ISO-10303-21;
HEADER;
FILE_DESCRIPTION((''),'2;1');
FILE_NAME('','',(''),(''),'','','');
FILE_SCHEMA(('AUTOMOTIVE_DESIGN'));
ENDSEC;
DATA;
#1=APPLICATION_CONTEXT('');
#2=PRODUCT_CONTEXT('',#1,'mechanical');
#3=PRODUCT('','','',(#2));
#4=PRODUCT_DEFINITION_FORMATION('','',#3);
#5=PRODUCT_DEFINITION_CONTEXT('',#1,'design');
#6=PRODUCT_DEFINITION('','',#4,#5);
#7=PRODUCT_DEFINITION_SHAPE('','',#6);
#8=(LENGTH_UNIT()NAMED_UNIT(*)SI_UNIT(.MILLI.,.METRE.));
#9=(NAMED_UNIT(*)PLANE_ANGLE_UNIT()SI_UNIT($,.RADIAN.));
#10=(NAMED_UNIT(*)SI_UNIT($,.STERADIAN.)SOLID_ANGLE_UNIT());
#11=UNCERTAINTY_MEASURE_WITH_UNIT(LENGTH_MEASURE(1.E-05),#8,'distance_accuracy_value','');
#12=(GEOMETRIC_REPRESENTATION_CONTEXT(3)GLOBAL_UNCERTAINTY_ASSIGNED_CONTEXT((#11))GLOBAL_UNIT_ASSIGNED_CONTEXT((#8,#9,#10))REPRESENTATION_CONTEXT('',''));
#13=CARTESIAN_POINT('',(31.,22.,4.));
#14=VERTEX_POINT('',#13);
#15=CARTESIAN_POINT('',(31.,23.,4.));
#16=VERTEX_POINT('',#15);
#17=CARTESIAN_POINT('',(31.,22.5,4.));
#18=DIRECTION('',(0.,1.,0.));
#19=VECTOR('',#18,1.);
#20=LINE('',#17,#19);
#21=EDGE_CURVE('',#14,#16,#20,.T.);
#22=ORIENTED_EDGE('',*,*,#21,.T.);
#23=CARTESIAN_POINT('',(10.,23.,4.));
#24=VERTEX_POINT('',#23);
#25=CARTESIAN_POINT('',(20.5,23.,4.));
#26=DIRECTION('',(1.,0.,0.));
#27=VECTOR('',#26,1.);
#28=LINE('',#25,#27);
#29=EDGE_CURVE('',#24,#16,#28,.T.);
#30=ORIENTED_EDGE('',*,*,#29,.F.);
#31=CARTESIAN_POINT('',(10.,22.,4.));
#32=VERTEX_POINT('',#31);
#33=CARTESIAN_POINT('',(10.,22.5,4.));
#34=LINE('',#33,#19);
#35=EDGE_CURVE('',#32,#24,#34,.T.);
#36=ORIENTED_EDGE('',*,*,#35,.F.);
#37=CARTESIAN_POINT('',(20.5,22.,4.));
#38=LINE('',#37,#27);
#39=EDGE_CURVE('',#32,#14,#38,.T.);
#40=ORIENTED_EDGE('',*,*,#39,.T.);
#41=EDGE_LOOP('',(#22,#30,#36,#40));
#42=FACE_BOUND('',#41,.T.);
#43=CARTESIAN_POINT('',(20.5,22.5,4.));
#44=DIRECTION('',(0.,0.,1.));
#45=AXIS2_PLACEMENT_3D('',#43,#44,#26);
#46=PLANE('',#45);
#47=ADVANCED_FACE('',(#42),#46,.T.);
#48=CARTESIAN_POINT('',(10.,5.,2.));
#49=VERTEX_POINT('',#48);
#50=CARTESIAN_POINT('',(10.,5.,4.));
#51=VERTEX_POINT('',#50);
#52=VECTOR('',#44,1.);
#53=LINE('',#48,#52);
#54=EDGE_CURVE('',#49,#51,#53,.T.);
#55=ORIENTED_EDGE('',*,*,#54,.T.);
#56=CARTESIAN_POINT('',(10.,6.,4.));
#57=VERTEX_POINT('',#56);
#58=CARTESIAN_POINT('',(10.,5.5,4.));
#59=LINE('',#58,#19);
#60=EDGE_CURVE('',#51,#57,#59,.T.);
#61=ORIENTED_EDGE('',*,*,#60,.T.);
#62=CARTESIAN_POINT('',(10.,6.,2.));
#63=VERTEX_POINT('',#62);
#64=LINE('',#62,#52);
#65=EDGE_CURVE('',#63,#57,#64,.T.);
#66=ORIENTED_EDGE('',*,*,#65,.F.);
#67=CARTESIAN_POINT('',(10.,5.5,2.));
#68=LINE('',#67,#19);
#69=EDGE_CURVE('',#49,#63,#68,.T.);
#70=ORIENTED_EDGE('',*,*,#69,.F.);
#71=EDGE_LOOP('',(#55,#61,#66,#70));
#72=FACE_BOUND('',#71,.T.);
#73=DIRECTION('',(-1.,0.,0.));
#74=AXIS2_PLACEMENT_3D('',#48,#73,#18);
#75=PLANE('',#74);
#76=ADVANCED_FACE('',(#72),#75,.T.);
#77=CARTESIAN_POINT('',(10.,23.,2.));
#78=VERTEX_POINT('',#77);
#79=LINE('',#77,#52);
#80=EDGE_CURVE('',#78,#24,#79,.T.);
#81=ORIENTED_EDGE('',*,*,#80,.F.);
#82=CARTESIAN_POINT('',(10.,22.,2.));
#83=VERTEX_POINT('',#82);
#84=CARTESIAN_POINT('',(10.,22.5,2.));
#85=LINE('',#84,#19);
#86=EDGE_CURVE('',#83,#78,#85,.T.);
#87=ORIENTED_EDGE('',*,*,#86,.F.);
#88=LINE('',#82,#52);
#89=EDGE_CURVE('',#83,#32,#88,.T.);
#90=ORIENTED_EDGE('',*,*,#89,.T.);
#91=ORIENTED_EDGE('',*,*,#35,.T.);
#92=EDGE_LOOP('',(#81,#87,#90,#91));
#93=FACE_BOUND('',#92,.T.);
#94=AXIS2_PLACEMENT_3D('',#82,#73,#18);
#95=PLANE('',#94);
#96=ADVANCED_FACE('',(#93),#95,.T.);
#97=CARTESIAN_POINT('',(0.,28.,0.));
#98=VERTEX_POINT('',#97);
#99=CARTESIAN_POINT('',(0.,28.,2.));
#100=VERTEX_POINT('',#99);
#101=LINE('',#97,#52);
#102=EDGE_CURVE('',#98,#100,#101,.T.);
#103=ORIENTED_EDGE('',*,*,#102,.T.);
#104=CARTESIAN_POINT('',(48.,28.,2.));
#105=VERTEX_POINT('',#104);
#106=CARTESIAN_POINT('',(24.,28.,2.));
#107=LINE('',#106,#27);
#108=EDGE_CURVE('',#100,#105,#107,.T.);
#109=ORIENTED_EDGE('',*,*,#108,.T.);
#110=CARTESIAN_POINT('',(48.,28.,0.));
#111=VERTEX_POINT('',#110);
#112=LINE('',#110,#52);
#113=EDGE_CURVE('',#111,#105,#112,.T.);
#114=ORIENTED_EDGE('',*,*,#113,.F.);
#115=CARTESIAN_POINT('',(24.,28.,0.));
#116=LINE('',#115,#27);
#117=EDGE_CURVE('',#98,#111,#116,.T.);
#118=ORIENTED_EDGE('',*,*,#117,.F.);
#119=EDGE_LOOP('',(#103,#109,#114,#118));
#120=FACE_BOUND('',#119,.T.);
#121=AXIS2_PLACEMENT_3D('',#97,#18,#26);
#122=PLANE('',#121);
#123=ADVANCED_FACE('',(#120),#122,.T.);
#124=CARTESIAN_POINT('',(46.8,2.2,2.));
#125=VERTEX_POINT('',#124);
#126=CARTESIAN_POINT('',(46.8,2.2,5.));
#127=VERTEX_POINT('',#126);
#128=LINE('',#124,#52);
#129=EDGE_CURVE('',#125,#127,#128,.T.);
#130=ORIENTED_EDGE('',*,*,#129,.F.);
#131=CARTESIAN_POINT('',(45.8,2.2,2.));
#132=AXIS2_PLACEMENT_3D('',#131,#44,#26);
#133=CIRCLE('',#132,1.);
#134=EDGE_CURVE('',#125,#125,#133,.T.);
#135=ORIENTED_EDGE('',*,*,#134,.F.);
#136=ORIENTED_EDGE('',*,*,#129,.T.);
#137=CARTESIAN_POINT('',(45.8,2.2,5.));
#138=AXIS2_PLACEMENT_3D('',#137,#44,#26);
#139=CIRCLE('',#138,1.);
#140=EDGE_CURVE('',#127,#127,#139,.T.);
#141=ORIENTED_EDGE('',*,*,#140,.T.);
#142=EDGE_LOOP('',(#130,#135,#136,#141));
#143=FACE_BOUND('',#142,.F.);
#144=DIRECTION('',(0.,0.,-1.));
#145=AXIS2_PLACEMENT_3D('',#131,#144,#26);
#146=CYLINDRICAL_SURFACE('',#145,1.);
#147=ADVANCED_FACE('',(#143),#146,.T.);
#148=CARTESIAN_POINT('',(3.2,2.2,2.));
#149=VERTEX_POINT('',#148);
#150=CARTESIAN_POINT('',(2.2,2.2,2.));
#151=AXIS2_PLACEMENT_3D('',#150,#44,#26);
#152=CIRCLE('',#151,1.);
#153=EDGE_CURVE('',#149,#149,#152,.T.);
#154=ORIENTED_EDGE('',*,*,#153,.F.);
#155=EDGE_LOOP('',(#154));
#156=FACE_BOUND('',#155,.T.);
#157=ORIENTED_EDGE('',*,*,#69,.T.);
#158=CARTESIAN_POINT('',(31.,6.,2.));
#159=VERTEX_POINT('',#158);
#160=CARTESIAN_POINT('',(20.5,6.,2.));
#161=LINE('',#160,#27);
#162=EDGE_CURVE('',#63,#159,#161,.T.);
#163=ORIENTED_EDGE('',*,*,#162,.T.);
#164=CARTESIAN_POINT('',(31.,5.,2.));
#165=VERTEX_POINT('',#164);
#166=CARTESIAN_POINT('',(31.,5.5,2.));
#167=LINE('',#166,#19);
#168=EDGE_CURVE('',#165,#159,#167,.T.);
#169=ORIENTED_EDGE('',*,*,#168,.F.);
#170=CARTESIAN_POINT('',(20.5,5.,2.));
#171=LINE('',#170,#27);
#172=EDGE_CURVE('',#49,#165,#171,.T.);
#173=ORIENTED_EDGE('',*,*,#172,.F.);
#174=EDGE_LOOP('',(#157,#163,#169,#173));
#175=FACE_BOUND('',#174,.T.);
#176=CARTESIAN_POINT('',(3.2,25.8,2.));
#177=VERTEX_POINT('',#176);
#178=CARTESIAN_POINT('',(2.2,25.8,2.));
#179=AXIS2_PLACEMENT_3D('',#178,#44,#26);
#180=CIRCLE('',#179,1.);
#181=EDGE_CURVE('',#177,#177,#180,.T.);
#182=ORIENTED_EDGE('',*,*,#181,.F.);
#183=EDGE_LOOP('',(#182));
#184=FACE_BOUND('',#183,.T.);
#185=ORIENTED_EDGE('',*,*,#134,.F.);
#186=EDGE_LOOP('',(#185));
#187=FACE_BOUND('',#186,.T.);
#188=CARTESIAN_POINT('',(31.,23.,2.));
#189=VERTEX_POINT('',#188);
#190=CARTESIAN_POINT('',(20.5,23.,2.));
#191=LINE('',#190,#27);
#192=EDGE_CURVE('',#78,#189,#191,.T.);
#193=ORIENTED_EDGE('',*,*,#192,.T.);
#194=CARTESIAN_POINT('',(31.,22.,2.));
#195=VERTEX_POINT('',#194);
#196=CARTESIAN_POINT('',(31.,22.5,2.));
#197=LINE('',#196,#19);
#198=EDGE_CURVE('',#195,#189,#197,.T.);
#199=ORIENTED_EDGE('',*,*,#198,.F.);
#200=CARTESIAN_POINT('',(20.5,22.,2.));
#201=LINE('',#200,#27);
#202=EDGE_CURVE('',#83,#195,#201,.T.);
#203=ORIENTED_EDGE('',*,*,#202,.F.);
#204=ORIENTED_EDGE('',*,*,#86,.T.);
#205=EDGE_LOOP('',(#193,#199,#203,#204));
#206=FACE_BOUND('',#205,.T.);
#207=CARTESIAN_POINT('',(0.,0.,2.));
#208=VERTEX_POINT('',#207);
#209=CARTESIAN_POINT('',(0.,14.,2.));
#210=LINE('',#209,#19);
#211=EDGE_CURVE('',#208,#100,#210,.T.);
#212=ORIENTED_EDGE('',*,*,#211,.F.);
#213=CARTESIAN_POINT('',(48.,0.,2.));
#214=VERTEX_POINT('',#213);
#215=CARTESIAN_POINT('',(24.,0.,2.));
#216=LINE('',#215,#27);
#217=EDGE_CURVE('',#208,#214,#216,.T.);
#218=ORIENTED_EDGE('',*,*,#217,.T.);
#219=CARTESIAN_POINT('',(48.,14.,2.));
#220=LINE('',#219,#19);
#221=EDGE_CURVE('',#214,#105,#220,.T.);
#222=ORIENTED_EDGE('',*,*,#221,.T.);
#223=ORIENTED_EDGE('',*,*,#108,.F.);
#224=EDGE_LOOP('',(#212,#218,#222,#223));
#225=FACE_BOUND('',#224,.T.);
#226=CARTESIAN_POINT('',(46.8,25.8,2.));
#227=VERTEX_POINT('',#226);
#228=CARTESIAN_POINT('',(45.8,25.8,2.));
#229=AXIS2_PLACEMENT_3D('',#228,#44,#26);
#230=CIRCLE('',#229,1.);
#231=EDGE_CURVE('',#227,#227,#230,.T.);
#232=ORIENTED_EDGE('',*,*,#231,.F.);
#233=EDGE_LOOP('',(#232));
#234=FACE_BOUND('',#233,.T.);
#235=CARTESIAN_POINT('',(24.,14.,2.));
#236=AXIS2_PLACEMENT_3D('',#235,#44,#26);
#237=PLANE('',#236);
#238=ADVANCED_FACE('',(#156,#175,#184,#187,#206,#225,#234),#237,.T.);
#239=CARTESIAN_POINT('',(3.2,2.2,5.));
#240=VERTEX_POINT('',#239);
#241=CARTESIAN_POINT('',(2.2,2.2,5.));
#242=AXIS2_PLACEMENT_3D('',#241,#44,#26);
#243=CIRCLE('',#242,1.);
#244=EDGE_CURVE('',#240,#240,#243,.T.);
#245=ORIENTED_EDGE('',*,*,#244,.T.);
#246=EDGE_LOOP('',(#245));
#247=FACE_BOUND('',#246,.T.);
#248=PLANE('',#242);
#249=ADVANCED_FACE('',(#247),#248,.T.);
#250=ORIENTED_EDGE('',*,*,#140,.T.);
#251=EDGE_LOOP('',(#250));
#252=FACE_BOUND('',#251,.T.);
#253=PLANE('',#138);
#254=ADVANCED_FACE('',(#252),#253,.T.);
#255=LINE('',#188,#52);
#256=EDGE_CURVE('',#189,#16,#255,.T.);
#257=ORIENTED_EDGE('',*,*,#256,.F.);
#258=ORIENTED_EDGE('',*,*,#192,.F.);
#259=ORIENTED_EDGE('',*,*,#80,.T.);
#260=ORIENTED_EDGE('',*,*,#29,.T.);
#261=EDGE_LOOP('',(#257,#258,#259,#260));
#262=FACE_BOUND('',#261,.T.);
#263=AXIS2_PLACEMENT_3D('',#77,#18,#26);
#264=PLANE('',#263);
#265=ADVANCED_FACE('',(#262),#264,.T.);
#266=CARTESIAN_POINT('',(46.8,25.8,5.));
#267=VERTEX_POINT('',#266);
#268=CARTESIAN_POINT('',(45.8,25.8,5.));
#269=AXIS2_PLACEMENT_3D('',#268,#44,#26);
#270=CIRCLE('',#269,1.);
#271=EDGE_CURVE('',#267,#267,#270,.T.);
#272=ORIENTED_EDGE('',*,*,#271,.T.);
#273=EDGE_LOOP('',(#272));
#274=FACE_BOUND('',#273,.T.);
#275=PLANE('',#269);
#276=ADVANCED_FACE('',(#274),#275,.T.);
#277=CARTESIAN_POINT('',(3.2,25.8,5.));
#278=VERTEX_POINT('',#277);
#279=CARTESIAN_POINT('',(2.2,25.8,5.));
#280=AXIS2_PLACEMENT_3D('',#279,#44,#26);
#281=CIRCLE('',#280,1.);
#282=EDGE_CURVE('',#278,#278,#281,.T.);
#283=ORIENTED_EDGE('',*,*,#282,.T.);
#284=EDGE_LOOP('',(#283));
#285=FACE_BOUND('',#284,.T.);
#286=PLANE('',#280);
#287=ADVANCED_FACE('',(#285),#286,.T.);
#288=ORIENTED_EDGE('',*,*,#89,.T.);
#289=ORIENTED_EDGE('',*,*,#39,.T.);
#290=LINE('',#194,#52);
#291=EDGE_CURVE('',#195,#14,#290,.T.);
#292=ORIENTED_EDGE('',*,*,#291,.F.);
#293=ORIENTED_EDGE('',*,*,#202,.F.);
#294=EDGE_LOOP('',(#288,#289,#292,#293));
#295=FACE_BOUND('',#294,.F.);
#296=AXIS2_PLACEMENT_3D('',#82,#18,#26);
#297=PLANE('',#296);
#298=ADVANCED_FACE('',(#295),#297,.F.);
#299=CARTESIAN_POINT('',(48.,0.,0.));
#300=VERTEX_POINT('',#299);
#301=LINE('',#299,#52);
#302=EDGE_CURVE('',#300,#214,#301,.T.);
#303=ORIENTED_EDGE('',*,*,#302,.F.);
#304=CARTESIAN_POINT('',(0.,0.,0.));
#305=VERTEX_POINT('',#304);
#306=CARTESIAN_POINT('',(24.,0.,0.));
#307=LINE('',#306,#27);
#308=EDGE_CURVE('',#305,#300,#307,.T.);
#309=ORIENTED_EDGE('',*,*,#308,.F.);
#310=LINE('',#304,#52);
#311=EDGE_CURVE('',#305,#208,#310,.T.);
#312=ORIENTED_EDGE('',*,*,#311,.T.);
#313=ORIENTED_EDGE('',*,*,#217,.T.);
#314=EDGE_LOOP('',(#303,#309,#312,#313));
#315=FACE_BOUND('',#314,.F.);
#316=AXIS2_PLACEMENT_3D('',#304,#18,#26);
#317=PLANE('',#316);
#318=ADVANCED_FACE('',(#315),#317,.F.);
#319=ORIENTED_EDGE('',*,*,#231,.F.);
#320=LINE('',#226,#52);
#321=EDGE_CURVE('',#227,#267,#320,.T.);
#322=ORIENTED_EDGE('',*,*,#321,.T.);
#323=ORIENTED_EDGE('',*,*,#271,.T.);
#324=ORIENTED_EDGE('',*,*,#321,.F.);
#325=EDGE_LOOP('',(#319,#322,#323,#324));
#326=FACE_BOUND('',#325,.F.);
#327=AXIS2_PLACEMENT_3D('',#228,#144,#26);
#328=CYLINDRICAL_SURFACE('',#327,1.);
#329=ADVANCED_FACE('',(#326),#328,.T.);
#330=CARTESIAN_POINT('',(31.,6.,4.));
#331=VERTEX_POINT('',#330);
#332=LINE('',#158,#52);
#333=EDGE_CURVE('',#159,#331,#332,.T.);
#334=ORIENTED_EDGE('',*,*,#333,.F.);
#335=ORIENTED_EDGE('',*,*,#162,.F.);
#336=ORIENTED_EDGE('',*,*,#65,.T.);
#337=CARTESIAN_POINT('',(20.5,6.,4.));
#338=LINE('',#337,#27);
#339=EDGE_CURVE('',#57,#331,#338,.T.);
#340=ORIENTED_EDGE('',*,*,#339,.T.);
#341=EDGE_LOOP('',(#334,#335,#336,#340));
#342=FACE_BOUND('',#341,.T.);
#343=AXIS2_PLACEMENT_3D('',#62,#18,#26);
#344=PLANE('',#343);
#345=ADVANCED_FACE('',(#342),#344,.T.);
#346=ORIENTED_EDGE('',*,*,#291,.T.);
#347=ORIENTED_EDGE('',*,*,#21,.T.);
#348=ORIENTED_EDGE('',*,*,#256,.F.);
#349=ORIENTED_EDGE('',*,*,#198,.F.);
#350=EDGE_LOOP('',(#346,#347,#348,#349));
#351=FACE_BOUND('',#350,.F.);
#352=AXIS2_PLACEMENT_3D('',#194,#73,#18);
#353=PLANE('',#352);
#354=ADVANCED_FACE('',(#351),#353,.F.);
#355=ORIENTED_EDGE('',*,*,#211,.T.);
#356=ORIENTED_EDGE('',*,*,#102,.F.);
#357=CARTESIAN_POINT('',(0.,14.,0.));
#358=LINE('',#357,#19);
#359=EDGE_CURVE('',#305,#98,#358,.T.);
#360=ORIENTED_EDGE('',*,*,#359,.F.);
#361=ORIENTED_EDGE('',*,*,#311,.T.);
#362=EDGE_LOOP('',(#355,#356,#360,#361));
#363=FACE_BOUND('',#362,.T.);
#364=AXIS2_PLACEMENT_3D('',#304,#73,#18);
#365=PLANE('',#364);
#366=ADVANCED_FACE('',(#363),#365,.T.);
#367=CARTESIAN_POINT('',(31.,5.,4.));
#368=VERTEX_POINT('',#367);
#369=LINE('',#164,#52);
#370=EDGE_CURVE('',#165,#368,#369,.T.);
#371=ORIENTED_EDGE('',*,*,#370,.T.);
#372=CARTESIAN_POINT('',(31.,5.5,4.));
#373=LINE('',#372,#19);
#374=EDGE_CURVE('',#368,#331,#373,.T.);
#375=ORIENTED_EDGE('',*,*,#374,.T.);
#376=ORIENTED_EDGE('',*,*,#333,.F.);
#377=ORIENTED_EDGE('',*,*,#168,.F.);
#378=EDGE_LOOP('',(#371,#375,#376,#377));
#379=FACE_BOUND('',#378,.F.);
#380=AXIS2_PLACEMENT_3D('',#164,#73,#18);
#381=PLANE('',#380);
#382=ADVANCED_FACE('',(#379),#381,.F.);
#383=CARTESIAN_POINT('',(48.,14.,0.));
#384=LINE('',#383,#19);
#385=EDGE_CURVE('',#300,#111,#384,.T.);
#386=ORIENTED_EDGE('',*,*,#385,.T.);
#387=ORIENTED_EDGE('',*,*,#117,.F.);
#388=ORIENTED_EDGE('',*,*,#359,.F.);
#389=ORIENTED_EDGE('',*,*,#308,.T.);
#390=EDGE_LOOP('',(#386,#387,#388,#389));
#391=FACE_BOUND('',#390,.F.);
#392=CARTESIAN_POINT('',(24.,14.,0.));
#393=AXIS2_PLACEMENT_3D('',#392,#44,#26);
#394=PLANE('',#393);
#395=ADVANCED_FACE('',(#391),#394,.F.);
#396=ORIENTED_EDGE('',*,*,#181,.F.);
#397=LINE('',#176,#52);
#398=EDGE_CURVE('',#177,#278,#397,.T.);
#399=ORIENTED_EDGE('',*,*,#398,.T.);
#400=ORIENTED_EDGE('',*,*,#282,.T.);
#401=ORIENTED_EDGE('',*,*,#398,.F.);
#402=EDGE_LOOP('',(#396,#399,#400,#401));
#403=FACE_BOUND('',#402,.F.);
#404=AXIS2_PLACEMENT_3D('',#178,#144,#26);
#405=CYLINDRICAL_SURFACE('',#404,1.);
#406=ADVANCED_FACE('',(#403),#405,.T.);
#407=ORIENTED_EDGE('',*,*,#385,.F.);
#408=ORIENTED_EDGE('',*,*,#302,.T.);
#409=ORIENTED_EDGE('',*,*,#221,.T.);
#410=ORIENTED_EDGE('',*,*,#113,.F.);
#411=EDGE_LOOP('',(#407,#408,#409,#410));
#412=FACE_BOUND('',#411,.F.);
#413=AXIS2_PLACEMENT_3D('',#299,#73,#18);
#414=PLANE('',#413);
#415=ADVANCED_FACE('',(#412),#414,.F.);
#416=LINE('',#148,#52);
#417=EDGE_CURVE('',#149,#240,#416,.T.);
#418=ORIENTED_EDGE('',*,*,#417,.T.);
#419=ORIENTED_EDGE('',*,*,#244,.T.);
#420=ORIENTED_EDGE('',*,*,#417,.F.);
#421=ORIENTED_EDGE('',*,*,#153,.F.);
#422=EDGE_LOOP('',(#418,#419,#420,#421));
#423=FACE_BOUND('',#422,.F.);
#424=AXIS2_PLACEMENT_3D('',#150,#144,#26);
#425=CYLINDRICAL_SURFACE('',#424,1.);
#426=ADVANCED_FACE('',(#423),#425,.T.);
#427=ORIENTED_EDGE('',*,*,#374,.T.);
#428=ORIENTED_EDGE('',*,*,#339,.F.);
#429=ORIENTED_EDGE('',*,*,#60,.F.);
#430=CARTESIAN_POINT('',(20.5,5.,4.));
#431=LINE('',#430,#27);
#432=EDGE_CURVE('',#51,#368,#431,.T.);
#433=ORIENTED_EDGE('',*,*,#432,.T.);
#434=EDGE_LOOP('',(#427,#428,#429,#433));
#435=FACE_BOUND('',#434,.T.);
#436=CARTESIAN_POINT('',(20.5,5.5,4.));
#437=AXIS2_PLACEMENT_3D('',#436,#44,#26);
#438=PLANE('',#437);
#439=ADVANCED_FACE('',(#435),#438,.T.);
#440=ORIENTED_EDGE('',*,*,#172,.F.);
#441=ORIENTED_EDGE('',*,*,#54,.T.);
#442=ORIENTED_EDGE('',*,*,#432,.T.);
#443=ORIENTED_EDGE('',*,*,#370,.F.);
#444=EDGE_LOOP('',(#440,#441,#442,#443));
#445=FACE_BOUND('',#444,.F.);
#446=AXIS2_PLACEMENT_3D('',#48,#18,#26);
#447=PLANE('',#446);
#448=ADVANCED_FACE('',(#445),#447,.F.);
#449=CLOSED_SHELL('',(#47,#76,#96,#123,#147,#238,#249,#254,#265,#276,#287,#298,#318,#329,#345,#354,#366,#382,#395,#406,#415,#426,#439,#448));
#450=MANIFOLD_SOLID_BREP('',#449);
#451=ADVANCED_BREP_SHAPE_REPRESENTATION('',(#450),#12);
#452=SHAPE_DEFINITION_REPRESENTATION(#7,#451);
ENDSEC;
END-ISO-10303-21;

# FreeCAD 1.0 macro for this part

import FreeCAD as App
import Part
import Sketcher

doc = App.newDocument("Part")
body = doc.addObject("PartDesign::Body", "Body")

sketch1 = body.newObject("Sketcher::SketchObject", "Sketch")
sketch1.AttachmentSupport = (doc.getObject("XY_Plane"), [""])
sketch1.MapMode = "FlatFace"
sketch1.addGeometry([
    Part.LineSegment(App.Vector(0, 28, 0), App.Vector(0, 0, 0)),
    Part.LineSegment(App.Vector(0, 0, 0), App.Vector(48, 0, 0)),
    Part.LineSegment(App.Vector(48, 0, 0), App.Vector(48, 28, 0)),
    Part.LineSegment(App.Vector(48, 28, 0), App.Vector(0, 28, 0)),
], False)
sketch1.addConstraint([
    Sketcher.Constraint("Coincident", 0, 2, 1, 1),
    Sketcher.Constraint("Coincident", 1, 2, 2, 1),
    Sketcher.Constraint("Coincident", 2, 2, 3, 1),
    Sketcher.Constraint("Coincident", 3, 2, 0, 1),
    Sketcher.Constraint("Vertical", 0),
    Sketcher.Constraint("Horizontal", 1),
    Sketcher.Constraint("Vertical", 2),
    Sketcher.Constraint("Horizontal", 3),
    Sketcher.Constraint("Coincident", 0, 2, -1, 1),
    Sketcher.Constraint("DistanceX", 1, 1, 1, 2, 48.0),
    Sketcher.Constraint("DistanceY", 0, 2, 0, 1, 28.0),
])
pad1 = body.newObject("PartDesign::Pad", "Pad")
pad1.Profile = sketch1
pad1.Length = 2

sketch2 = body.newObject("Sketcher::SketchObject", "Sketch001")
sketch2.AttachmentSupport = (doc.getObject("XY_Plane"), [""])
sketch2.MapMode = "FlatFace"
sketch2.AttachmentOffset = App.Placement(App.Vector(0, 0, 2), App.Rotation())
sketch2.addGeometry([
    Part.Circle(App.Vector(2.2, 2.2, 0), App.Vector(0, 0, 1), 1),
    Part.Circle(App.Vector(2.2, 25.8, 0), App.Vector(0, 0, 1), 1),
    Part.Circle(App.Vector(45.8, 25.8, 0), App.Vector(0, 0, 1), 1),
    Part.Circle(App.Vector(45.8, 2.2, 0), App.Vector(0, 0, 1), 1),
], False)
sketch2.addConstraint([
    Sketcher.Constraint("Equal", 0, 1),
    Sketcher.Constraint("Equal", 1, 2),
    Sketcher.Constraint("Equal", 2, 3),
    Sketcher.Constraint("Horizontal", 1, 3, 2, 3),
    Sketcher.Constraint("Horizontal", 0, 3, 3, 3),
    Sketcher.Constraint("Vertical", 0, 3, 1, 3),
    Sketcher.Constraint("Vertical", 2, 3, 3, 3),
    Sketcher.Constraint("Diameter", 0, 2.0),
    Sketcher.Constraint("DistanceX", -1, 1, 0, 3, 2.2),
    Sketcher.Constraint("DistanceY", -1, 1, 0, 3, 2.2),
    Sketcher.Constraint("DistanceY", -1, 1, 1, 3, 25.8),
    Sketcher.Constraint("DistanceX", -1, 1, 2, 3, 45.8),
])
pad2 = body.newObject("PartDesign::Pad", "Pad001")
pad2.Profile = sketch2
pad2.Length = 3

sketch3 = body.newObject("Sketcher::SketchObject", "Sketch002")
sketch3.AttachmentSupport = (doc.getObject("XY_Plane"), [""])
sketch3.MapMode = "FlatFace"
sketch3.AttachmentOffset = App.Placement(App.Vector(0, 0, 2), App.Rotation())
sketch3.addGeometry([
    Part.LineSegment(App.Vector(10, 23, 0), App.Vector(10, 22, 0)),
    Part.LineSegment(App.Vector(10, 22, 0), App.Vector(31, 22, 0)),
    Part.LineSegment(App.Vector(31, 22, 0), App.Vector(31, 23, 0)),
    Part.LineSegment(App.Vector(31, 23, 0), App.Vector(10, 23, 0)),
    Part.LineSegment(App.Vector(10, 6, 0), App.Vector(10, 5, 0)),
    Part.LineSegment(App.Vector(10, 5, 0), App.Vector(31, 5, 0)),
    Part.LineSegment(App.Vector(31, 5, 0), App.Vector(31, 6, 0)),
    Part.LineSegment(App.Vector(31, 6, 0), App.Vector(10, 6, 0)),
], False)
sketch3.addConstraint([
    Sketcher.Constraint("Coincident", 0, 2, 1, 1),
    Sketcher.Constraint("Coincident", 1, 2, 2, 1),
    Sketcher.Constraint("Coincident", 2, 2, 3, 1),
    Sketcher.Constraint("Coincident", 3, 2, 0, 1),
    Sketcher.Constraint("Coincident", 4, 2, 5, 1),
    Sketcher.Constraint("Coincident", 5, 2, 6, 1),
    Sketcher.Constraint("Coincident", 6, 2, 7, 1),
    Sketcher.Constraint("Coincident", 7, 2, 4, 1),
    Sketcher.Constraint("Vertical", 0),
    Sketcher.Constraint("Horizontal", 1),
    Sketcher.Constraint("Vertical", 2),
    Sketcher.Constraint("Horizontal", 3),
    Sketcher.Constraint("Vertical", 4),
    Sketcher.Constraint("Horizontal", 5),
    Sketcher.Constraint("Vertical", 6),
    Sketcher.Constraint("Horizontal", 7),
    Sketcher.Constraint("Vertical", 3, 2, 4, 2),
    Sketcher.Constraint("Vertical", 2, 2, 5, 2),
    Sketcher.Constraint("Equal", 2, 4),
    Sketcher.Constraint("DistanceX", 1, 1, 1, 2, 21.0),
    Sketcher.Constraint("DistanceY", 0, 2, 0, 1, 1.0),
    Sketcher.Constraint("DistanceX", -1, 1, 0, 2, 10.0),
    Sketcher.Constraint("DistanceY", -1, 1, 0, 2, 22.0),
    Sketcher.Constraint("DistanceY", -1, 1, 4, 2, 5.0),
])
pad3 = body.newObject("PartDesign::Pad", "Pad002")
pad3.Profile = sketch3
pad3.Length = 2

doc.recompute()
